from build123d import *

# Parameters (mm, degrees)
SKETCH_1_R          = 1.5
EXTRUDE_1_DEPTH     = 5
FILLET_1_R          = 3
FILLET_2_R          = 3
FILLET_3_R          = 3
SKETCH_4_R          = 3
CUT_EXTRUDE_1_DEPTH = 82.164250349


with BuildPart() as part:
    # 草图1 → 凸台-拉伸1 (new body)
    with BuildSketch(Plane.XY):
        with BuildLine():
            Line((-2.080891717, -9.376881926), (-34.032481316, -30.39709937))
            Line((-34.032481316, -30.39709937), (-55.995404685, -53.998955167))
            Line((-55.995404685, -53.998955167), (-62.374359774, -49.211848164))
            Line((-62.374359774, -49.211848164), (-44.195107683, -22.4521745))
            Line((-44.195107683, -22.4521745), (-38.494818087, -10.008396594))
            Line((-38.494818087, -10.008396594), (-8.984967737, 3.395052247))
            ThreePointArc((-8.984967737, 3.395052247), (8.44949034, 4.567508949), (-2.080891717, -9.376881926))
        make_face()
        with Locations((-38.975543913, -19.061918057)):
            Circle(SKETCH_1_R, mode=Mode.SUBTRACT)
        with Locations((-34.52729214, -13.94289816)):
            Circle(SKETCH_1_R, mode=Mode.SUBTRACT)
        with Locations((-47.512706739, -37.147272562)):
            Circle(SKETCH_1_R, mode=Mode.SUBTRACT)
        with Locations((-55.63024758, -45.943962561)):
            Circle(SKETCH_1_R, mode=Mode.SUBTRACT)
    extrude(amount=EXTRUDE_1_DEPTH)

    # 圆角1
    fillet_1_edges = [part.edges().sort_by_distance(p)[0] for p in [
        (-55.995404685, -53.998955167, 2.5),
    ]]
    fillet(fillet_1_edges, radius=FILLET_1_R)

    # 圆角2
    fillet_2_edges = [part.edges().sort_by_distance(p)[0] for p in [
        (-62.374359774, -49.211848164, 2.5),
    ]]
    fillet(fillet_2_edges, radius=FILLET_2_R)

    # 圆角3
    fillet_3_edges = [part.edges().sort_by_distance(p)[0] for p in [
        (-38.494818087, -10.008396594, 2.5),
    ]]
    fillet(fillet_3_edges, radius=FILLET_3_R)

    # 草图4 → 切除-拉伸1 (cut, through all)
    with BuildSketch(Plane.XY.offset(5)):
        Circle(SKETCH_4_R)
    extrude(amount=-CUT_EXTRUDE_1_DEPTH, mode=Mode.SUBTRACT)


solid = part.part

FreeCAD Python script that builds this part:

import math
import FreeCAD as App
import Part
import Sketcher

V = App.Vector
Q = App.Units.Quantity


def edges_at(feature, points):
    """Names of the edges that pass closest to the given points."""
    edges = feature.Shape.Edges
    near = lambda p: min(range(len(edges)), key=lambda i: edges[i].distToShape(Part.Vertex(*p))[0])
    return sorted({f"Edge{near(p) + 1}" for p in points})

doc = App.newDocument("Part")
body = doc.addObject("PartDesign::Body", "Body")

sketch1 = body.newObject("Sketcher::SketchObject", "Sketch")
sketch1.AttachmentSupport = (doc.getObject("XY_Plane"), [""])
sketch1.MapMode = "FlatFace"
sketch1.addGeometry([
    Part.LineSegment(V(-34, -30.4, 0), V(-2.1, -9.4, 0)),
    Part.ArcOfCircle(Part.Circle(V(0, 0, 0), V(0, 0, 1), 9.6), math.radians(-103), math.radians(159)),
    Part.LineSegment(V(-9, 3.4, 0), V(-38.5, -10, 0)),
    Part.LineSegment(V(-38.5, -10, 0), V(-44.2, -22.5, 0)),
    Part.LineSegment(V(-44.2, -22.5, 0), V(-62.4, -49.2, 0)),
    Part.LineSegment(V(-62.4, -49.2, 0), V(-56, -54, 0)),
    Part.LineSegment(V(-56, -54, 0), V(-34, -30.4, 0)),
    Part.Circle(V(-55.6, -45.9, 0), V(0, 0, 1), 1.5),
    Part.Circle(V(-47.5, -37.1, 0), V(0, 0, 1), 1.5),
    Part.Circle(V(-39, -19.1, 0), V(0, 0, 1), 1.5),
    Part.Circle(V(-34.5, -13.9, 0), V(0, 0, 1), 1.5),
], False)
sketch1.addConstraint([
    Sketcher.Constraint("Coincident", 0, 2, 1, 1),
    Sketcher.Constraint("Coincident", 1, 2, 2, 1),
    Sketcher.Constraint("Coincident", 2, 2, 3, 1),
    Sketcher.Constraint("Coincident", 3, 2, 4, 1),
    Sketcher.Constraint("Coincident", 4, 2, 5, 1),
    Sketcher.Constraint("Coincident", 5, 2, 6, 1),
    Sketcher.Constraint("Coincident", 6, 2, 0, 1),
    Sketcher.Constraint("Coincident", 1, 3, -1, 1),
    Sketcher.Constraint("Equal", 7, 8),
    Sketcher.Constraint("Equal", 8, 9),
    Sketcher.Constraint("Equal", 9, 10),
    Sketcher.Constraint("Diameter", 7, 3.0),
    Sketcher.Constraint("Radius", 1, 9.605),
    Sketcher.Constraint("Angle", 0, Q("33.34 deg")),
    Sketcher.Constraint("Angle", 6, Q("47.06 deg")),
    Sketcher.Constraint("Distance", 6, 32.24),
    Sketcher.Constraint("DistanceY", 10, 3, -1, 1, 13.942898),
    Sketcher.Constraint("DistanceY", 6, 2, -1, 1, 30.397099),
    Sketcher.Constraint("DistanceX", 10, 3, 0, 2, 32.4464),
    Sketcher.Constraint("DistanceY", 10, 3, 2, 2, 3.934502),
    Sketcher.Constraint("DistanceX", 8, 3, 3, 2, 3.317599),
    Sketcher.Constraint("DistanceY", 8, 3, 3, 2, 14.695098),
    Sketcher.Constraint("Distance", 5, 7.975429),
    Sketcher.Constraint("DistanceY", 9, 3, -1, 1, 19.061918),
    Sketcher.Constraint("DistanceX", 0, 2, -1, 1, 2.080892),
    Sketcher.Constraint("DistanceX", 2, 2, -1, 1, 38.494818),
    Sketcher.Constraint("DistanceX", 4, 2, -1, 1, 62.37436),
    Sketcher.Constraint("DistanceX", 7, 3, 8, 3, 8.117541),
    Sketcher.Constraint("DistanceY", 7, 3, 8, 3, 8.79669),
    Sketcher.Constraint("DistanceX", 9, 3, 10, 3, 4.448252),
    Sketcher.Constraint("DistanceY", 8, 3, 0, 2, 27.770391),
    Sketcher.Constraint("DistanceY", 10, 3, 1, 2, 17.33795),
    Sketcher.Constraint("DistanceX", 8, 3, 1, 2, 38.527739),
])
pad1 = body.newObject("PartDesign::Pad", "Pad")
pad1.Profile = sketch1
pad1.Length = 5
doc.recompute()

fillet = body.newObject("PartDesign::Fillet", "Fillet")
fillet.Base = (pad1, edges_at(pad1, [(-55.995, -53.999, 2.5)]))
fillet.Radius = 3
doc.recompute()

fillet2 = body.newObject("PartDesign::Fillet", "Fillet001")
fillet2.Base = (fillet, edges_at(fillet, [(-62.374, -49.212, 2.5)]))
fillet2.Radius = 3
doc.recompute()

fillet3 = body.newObject("PartDesign::Fillet", "Fillet002")
fillet3.Base = (fillet2, edges_at(fillet2, [(-38.495, -10.008, 2.5)]))
fillet3.Radius = 3

sketch2 = body.newObject("Sketcher::SketchObject", "Sketch001")
sketch2.AttachmentSupport = (doc.getObject("XY_Plane"), [""])
sketch2.MapMode = "FlatFace"
sketch2.AttachmentOffset = App.Placement(V(0, 0, 5), App.Rotation())
sketch2.addGeometry(Part.Circle(V(0, 0, 0), V(0, 0, 1), 3), False)
sketch2.addConstraint([
    Sketcher.Constraint("Coincident", 0, 3, -1, 1),
    Sketcher.Constraint("Diameter", 0, 6.0),
])
pocket1 = body.newObject("PartDesign::Pocket", "Pocket")
pocket1.Profile = sketch2
pocket1.Type = "ThroughAll"

doc.recompute()
